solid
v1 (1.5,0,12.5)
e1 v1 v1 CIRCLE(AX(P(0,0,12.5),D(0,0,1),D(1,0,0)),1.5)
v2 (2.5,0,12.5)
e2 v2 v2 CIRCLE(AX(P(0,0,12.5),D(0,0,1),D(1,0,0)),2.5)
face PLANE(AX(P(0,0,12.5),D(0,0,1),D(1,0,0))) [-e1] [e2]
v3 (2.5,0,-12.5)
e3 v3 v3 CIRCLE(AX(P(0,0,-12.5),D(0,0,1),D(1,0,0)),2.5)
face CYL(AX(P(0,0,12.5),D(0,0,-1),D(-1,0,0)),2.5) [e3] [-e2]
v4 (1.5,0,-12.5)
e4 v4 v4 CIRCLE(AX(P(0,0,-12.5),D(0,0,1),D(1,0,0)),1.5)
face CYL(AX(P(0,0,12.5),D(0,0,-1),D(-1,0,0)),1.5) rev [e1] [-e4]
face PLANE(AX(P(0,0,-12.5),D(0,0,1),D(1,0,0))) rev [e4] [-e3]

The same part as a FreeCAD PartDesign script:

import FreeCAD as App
import Part
import Sketcher
from FreeCAD import Vector

doc = App.newDocument("Part")
params = doc.addObject("Spreadsheet::Sheet", "Params")
for row, (alias, value) in enumerate([
    ("sketch1_diameter", "5 mm"),
    ("sketch1_diameter2", "3 mm"),
    ("pad1_length", "25 mm"),
], start=1):
    params.set(f"A{row}", alias)
    params.set(f"B{row}", "=" + value)
    params.setAlias(f"B{row}", alias)

body = doc.addObject("PartDesign::Body", "Body")

sketch1 = doc.addObject("Sketcher::SketchObject", "Sketch")
body.addObject(sketch1)
sketch1.AttachmentSupport = (doc.XY_Plane, [""])
sketch1.MapMode = "FlatFace"
sketch1.addGeometry([
    Part.Circle(Vector(0, 0, 0), Vector(0, 0, 1), 2.5),
    Part.Circle(Vector(0, 0, 0), Vector(0, 0, 1), 1.5),
], False)
sketch1.addConstraint([
    Sketcher.Constraint("Coincident", 0, 3, -1, 1),
    Sketcher.Constraint("Coincident", 1, 3, -1, 1),
    Sketcher.Constraint("Diameter", 0, 5.0),
    Sketcher.Constraint("Diameter", 1, 3.0),
])
sketch1.setExpression("Constraints[2]", "Params.sketch1_diameter")
sketch1.setExpression("Constraints[3]", "Params.sketch1_diameter2")
pad1 = doc.addObject("PartDesign::Pad", "Pad")
body.addObject(pad1)
pad1.Profile = sketch1
pad1.setExpression("Length", "Params.pad1_length")
pad1.Midplane = True

doc.recompute()
